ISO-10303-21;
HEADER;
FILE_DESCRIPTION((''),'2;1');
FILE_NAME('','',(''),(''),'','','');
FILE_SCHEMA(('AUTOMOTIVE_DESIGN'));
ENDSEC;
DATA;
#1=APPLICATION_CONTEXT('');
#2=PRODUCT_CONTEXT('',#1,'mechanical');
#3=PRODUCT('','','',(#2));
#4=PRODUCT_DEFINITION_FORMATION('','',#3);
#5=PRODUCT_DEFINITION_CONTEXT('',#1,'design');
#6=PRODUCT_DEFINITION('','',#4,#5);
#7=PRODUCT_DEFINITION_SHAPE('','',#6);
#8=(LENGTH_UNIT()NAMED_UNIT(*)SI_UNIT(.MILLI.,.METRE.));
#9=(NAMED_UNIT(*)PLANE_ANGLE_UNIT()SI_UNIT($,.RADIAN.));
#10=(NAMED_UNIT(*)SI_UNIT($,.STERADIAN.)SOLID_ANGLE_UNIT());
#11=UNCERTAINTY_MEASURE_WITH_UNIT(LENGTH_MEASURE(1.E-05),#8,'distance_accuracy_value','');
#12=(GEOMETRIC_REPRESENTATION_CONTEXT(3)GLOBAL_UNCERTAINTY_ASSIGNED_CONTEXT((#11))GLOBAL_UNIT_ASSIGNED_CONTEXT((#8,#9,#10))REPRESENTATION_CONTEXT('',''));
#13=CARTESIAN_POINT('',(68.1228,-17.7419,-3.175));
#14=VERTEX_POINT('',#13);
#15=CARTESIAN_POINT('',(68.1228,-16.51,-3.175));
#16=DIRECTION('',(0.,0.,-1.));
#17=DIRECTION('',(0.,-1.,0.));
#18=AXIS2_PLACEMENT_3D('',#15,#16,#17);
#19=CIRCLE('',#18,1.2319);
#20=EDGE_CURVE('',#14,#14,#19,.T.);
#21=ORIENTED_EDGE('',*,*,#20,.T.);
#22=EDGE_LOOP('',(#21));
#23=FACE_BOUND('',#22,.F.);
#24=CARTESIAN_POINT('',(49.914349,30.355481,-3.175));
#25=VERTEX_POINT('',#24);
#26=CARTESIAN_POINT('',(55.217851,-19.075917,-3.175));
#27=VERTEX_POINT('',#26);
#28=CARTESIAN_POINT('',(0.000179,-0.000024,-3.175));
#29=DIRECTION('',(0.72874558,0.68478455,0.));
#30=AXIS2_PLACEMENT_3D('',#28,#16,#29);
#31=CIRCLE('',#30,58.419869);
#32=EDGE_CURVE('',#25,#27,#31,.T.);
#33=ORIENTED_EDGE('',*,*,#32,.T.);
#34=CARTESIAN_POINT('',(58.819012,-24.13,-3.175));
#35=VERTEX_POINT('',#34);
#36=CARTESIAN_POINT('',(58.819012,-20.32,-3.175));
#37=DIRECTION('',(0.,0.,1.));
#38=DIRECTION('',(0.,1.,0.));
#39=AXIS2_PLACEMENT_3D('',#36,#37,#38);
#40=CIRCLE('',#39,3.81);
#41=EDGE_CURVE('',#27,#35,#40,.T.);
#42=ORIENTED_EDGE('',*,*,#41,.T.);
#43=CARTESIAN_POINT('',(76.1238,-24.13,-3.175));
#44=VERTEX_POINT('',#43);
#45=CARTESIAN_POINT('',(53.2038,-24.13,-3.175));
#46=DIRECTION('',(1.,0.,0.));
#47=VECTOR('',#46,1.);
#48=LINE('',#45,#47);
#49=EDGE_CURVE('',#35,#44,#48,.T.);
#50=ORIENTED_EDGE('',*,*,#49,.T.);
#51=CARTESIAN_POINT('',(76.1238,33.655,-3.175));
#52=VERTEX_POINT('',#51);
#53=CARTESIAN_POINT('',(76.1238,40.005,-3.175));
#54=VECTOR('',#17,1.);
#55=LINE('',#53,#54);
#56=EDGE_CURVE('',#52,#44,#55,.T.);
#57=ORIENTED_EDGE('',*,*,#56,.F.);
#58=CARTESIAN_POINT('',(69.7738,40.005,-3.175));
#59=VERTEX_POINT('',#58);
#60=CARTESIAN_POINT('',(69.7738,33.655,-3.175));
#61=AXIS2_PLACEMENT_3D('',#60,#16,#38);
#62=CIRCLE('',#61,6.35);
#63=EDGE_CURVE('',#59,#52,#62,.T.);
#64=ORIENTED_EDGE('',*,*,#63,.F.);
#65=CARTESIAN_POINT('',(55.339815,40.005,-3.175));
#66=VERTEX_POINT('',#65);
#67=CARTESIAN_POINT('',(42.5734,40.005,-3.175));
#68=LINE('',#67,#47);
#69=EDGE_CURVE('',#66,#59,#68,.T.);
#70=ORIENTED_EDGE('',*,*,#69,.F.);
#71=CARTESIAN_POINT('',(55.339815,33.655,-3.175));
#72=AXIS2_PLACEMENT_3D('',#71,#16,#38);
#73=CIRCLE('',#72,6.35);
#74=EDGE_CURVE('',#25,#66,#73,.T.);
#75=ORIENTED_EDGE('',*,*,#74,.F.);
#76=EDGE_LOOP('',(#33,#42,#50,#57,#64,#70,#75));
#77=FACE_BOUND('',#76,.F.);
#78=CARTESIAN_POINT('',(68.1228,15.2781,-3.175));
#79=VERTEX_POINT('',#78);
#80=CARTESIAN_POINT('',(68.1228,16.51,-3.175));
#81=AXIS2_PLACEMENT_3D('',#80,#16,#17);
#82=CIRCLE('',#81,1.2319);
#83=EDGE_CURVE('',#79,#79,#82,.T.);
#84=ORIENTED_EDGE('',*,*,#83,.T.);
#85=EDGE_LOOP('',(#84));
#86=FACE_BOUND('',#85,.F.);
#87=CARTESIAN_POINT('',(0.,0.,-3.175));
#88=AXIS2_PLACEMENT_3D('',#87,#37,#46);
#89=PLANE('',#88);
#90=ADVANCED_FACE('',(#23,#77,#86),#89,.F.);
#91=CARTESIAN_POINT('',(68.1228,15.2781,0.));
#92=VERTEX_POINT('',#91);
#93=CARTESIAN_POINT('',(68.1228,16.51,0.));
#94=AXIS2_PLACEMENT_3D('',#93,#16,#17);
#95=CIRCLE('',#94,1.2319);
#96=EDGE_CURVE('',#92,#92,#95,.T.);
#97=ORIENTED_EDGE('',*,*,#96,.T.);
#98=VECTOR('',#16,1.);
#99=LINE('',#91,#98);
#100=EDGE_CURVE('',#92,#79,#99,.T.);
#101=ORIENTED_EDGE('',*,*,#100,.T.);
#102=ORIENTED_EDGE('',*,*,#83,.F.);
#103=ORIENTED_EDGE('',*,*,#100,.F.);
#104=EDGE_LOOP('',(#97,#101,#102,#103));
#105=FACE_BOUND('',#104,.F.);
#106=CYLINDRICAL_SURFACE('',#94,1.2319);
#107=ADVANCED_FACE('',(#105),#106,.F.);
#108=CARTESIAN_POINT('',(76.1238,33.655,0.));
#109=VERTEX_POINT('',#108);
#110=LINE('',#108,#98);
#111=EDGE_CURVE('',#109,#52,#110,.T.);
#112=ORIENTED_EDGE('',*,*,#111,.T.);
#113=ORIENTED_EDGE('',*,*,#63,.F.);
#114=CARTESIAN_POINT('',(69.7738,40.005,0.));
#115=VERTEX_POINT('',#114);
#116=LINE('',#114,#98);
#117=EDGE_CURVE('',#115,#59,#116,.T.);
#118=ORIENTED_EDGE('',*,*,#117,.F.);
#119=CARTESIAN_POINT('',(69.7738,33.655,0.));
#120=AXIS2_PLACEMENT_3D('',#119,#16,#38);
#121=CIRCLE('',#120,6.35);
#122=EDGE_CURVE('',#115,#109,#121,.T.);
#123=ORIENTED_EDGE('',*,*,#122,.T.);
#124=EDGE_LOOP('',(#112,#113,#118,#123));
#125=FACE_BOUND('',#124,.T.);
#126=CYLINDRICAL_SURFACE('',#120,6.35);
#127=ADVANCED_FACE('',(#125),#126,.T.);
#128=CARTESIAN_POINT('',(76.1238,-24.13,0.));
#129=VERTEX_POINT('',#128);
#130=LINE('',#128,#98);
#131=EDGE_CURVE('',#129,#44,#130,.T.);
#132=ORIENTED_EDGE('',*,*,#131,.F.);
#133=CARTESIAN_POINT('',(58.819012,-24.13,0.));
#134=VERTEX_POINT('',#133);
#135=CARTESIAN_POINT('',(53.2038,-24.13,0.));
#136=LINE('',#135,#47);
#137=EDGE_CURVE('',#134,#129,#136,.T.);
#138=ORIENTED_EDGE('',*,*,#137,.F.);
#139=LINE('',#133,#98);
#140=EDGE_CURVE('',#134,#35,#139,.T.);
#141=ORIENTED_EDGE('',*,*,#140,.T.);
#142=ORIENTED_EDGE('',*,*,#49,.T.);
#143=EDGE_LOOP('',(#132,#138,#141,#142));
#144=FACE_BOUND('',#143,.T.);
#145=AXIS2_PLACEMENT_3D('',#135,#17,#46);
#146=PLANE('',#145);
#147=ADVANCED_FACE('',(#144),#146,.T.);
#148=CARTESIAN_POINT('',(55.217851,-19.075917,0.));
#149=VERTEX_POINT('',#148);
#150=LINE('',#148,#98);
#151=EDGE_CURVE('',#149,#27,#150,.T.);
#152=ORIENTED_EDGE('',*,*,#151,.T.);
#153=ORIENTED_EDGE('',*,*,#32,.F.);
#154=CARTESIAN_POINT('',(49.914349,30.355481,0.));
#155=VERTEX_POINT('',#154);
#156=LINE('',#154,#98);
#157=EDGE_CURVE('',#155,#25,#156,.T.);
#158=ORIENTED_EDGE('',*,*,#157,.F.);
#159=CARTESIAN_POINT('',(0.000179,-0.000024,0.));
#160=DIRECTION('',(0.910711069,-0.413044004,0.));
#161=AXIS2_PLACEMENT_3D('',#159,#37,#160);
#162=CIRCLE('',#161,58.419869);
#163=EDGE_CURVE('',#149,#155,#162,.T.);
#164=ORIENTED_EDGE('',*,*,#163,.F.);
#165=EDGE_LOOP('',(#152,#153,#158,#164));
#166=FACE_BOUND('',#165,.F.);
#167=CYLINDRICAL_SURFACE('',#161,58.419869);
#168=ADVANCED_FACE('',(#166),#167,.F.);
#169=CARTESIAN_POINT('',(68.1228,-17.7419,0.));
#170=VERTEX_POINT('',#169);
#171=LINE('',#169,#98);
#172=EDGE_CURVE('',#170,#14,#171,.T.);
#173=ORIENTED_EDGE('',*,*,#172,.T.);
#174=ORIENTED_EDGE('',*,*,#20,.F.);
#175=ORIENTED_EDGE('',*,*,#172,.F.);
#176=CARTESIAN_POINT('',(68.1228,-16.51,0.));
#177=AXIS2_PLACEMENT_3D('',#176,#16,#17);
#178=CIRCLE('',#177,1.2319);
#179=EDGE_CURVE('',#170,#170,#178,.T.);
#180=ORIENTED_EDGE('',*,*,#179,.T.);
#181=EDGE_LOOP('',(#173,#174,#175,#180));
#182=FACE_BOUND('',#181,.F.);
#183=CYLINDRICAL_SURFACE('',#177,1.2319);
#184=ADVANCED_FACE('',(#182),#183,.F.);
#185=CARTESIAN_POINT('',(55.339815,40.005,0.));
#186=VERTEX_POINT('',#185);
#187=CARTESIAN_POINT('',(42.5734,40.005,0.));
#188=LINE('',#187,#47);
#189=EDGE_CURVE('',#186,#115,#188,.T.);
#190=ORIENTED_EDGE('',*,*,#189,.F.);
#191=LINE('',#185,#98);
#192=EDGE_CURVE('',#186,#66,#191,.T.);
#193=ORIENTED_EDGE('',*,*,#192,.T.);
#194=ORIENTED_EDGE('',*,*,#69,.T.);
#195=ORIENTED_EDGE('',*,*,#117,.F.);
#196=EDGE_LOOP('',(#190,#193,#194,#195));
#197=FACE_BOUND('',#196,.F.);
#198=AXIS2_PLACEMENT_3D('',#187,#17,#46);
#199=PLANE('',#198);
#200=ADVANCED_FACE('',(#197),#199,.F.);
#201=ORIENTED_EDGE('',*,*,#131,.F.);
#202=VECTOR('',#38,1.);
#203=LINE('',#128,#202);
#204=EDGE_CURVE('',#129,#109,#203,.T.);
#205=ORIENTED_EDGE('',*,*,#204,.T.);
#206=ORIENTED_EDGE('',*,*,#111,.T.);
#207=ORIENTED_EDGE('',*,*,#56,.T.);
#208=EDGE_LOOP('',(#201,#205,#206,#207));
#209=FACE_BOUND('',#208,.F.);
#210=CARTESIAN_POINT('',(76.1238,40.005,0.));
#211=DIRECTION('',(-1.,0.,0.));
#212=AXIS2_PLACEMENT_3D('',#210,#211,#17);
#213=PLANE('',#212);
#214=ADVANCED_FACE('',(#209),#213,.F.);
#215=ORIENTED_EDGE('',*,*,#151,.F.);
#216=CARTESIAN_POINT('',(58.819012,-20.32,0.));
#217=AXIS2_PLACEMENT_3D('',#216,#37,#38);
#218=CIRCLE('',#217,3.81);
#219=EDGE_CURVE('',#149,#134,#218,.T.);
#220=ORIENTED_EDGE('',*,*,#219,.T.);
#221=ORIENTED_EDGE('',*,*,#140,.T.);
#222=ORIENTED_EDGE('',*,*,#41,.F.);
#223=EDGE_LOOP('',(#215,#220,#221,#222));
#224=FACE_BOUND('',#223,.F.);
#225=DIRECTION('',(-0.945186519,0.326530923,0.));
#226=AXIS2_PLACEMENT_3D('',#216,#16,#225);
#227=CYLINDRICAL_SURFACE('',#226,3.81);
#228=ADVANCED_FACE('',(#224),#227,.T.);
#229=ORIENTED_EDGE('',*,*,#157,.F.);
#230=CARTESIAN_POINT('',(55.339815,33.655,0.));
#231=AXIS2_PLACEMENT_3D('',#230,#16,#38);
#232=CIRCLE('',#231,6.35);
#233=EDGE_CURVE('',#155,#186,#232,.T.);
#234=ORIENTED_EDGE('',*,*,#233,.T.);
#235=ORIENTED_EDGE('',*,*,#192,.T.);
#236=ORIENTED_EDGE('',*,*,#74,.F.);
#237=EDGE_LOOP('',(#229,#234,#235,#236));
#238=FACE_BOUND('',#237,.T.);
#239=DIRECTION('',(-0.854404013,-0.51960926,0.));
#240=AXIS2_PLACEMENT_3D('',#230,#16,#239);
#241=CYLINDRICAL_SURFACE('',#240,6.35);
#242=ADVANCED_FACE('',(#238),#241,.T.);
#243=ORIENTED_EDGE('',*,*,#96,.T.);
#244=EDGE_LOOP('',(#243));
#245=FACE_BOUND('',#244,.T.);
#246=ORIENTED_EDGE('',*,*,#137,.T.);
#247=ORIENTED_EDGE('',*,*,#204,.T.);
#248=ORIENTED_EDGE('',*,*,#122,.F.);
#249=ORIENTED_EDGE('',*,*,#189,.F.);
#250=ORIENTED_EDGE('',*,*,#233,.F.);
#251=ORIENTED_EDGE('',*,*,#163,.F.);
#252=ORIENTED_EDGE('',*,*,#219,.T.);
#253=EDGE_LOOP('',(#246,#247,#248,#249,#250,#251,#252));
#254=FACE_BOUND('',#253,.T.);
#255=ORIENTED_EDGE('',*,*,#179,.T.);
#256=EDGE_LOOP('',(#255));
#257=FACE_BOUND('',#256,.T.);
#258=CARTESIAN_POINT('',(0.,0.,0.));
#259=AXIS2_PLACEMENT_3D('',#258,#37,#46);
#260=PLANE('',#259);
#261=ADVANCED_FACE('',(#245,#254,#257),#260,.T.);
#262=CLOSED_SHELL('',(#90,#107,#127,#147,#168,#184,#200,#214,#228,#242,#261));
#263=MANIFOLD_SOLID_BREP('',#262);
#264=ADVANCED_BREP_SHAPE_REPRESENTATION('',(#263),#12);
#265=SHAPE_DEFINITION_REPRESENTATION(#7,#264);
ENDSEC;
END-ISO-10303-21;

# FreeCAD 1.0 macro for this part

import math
import FreeCAD as App
import Part
import Sketcher

V = App.Vector
Q = App.Units.Quantity


def edges_at(feature, points):
    """Names of the edges that pass closest to the given points."""
    edges = feature.Shape.Edges
    near = lambda p: min(range(len(edges)), key=lambda i: edges[i].distToShape(Part.Vertex(*p))[0])
    return sorted({f"Edge{near(p) + 1}" for p in points})

doc = App.newDocument("Part")
body = doc.addObject("PartDesign::Body", "Body")

# Sketch on XY plane
sketch1 = body.newObject("Sketcher::SketchObject", "Sketch")
sketch1.AttachmentSupport = (doc.getObject("XY_Plane"), [""])
sketch1.MapMode = "FlatFace"
sketch1.addGeometry(Part.ArcOfCircle(Part.Circle(V(0, 0, 0), V(0, 0, 1), 58), math.radians(-24), math.radians(43)), False)
sketch1.addGeometry(Part.LineSegment(V(53, -24, 0), V(76, -24, 0)), False)
sketch1.addGeometry(Part.LineSegment(V(76, -24, 0), V(76, 40, 0)), False)
sketch1.addGeometry(Part.LineSegment(V(76, 40, 0), V(43, 40, 0)), False)
sketch1.addConstraint(Sketcher.Constraint("Coincident", 0, 1, 1, 1))
sketch1.addConstraint(Sketcher.Constraint("Coincident", 1, 2, 2, 1))
sketch1.addConstraint(Sketcher.Constraint("Coincident", 2, 2, 3, 1))
sketch1.addConstraint(Sketcher.Constraint("Coincident", 3, 2, 0, 2))
sketch1.addConstraint(Sketcher.Constraint("Horizontal", 1))
sketch1.addConstraint(Sketcher.Constraint("Vertical", 2))
sketch1.addConstraint(Sketcher.Constraint("Horizontal", 3))
sketch1.addConstraint(Sketcher.Constraint("Coincident", 0, 3, -1, 1))
sketch1.addConstraint(Sketcher.Constraint("Radius", 0, Q("2.3 in")))
sketch1.addConstraint(Sketcher.Constraint("DistanceY", 2, 1, 2, 2, Q("2.525 in")))
sketch1.addConstraint(Sketcher.Constraint("DistanceY", 0, 1, -1, 1, Q("0.95 in")))
sketch1.addConstraint(Sketcher.Constraint("DistanceX", -1, 1, 1, 2, Q("2.997 in")))
pad1 = body.newObject("PartDesign::Pad", "Pad")
pad1.Profile = sketch1
pad1.Length = Q("0.125 in")
pad1.Reversed = True

# Sketch on XY plane
sketch2 = body.newObject("Sketcher::SketchObject", "Sketch001")
sketch2.AttachmentSupport = (doc.getObject("XY_Plane"), [""])
sketch2.MapMode = "FlatFace"
sketch2.addGeometry(Part.Circle(V(68.1, 16.5, 0), V(0, 0, 1), 1.2), False)
sketch2.addGeometry(Part.Circle(V(68.1, -16.5, 0), V(0, 0, 1), 1.2), False)
sketch2.addConstraint(Sketcher.Constraint("Equal", 0, 1))
sketch2.addConstraint(Sketcher.Constraint("Symmetric", 0, 3, 1, 3, -1))
sketch2.addConstraint(Sketcher.Constraint("Diameter", 0, Q("0.097 in")))
sketch2.addConstraint(Sketcher.Constraint("DistanceY", 1, 3, 0, 3, Q("1.3 in")))
sketch2.addConstraint(Sketcher.Constraint("DistanceX", -1, 1, 0, 3, Q("2.682 in")))
doc.recompute()
hole = body.newObject("PartDesign::Hole", "Hole")
hole.Profile = sketch2
hole.ThreadType = "None"
hole.Diameter = Q("0.097 in")
hole.DepthType = "ThroughAll"
doc.recompute()

fillet = body.newObject("PartDesign::Fillet", "Fillet")
fillet.Base = (hole, edges_at(hole, [(53.204, -24.13, -1.587)]))
fillet.Radius = Q("0.15 in")
doc.recompute()

fillet2 = body.newObject("PartDesign::Fillet", "Fillet001")
fillet2.Base = (fillet, edges_at(fillet, [(76.124, 40.005, -1.587), (42.573, 40.005, -1.587)]))
fillet2.Radius = Q("0.25 in")

doc.recompute()
